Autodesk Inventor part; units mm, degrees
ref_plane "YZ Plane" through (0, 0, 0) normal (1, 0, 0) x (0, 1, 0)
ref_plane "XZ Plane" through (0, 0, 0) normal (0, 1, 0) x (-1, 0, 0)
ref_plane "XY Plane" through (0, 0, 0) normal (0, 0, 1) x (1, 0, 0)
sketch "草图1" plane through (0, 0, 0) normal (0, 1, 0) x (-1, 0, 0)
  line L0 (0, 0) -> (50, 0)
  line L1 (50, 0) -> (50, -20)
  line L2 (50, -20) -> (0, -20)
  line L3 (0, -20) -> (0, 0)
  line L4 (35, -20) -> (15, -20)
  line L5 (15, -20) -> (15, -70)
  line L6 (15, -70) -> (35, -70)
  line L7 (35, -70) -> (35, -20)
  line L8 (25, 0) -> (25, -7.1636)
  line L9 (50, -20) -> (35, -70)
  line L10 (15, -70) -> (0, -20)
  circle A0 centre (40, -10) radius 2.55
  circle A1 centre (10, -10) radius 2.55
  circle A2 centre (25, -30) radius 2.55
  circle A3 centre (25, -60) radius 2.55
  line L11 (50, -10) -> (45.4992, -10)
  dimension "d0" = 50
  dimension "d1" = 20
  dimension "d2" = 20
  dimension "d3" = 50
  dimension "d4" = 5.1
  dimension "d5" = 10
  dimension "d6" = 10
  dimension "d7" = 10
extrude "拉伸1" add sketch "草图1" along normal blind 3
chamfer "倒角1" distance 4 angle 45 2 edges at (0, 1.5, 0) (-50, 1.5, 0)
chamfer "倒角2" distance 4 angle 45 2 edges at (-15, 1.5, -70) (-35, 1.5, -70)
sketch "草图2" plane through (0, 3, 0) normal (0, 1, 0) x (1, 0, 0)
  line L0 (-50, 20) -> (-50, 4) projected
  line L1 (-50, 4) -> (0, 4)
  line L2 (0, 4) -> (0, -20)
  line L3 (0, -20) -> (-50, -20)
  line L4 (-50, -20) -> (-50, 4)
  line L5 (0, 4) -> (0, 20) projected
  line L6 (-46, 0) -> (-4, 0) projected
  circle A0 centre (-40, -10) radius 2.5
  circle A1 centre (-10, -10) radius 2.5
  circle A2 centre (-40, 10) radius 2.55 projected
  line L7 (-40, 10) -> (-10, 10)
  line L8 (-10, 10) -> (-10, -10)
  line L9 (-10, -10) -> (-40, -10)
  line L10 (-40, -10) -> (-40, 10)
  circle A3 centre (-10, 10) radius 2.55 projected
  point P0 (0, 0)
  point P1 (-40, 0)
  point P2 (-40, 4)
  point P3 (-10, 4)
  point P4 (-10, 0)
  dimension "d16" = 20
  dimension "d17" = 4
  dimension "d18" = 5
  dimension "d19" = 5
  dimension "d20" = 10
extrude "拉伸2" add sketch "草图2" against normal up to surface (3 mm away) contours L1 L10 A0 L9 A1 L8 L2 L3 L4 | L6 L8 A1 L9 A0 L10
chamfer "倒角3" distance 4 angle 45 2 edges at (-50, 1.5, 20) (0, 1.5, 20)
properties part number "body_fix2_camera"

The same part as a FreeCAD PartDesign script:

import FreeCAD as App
import Part
import Sketcher

V = App.Vector
Q = App.Units.Quantity


def edges_at(feature, points):
    """Names of the edges that pass closest to the given points."""
    edges = feature.Shape.Edges
    near = lambda p: min(range(len(edges)), key=lambda i: edges[i].distToShape(Part.Vertex(*p))[0])
    return sorted({f"Edge{near(p) + 1}" for p in points})

doc = App.newDocument("Part")
body = doc.addObject("PartDesign::Body", "Body")

# Sketch on XZ plane
sketch1 = body.newObject("Sketcher::SketchObject", "Sketch")
sketch1.AttachmentSupport = (doc.getObject("XZ_Plane"), [""])
sketch1.MapMode = "FlatFace"
sketch1.addGeometry([
    Part.LineSegment(V(0, 0, 0), V(0, -20, 0)),  # 0
    Part.LineSegment(V(0, -20, 0), V(-15, -70, 0)),  # 1
    Part.LineSegment(V(-15, -70, 0), V(-35, -70, 0)),  # 2
    Part.LineSegment(V(-35, -70, 0), V(-50, -20, 0)),  # 3
    Part.LineSegment(V(-50, -20, 0), V(-50, 0, 0)),  # 4
    Part.LineSegment(V(-50, 0, 0), V(0, 0, 0)),  # 5
    Part.Circle(V(-10, -10, 0), V(0, 0, 1), 2.55),  # 6
    Part.Circle(V(-40, -10, 0), V(0, 0, 1), 2.55),  # 7
    Part.Circle(V(-25, -30, 0), V(0, 0, 1), 2.55),  # 8
    Part.Circle(V(-25, -60, 0), V(0, 0, 1), 2.55),  # 9
], False)
sketch1.addConstraint([
    Sketcher.Constraint("Coincident", 0, 2, 1, 1),
    Sketcher.Constraint("Coincident", 1, 2, 2, 1),
    Sketcher.Constraint("Coincident", 2, 2, 3, 1),
    Sketcher.Constraint("Coincident", 3, 2, 4, 1),
    Sketcher.Constraint("Coincident", 4, 2, 5, 1),
    Sketcher.Constraint("Coincident", 5, 2, 0, 1),
    Sketcher.Constraint("Vertical", 0),
    Sketcher.Constraint("Horizontal", 2),
    Sketcher.Constraint("Vertical", 4),
    Sketcher.Constraint("Horizontal", 5),
    Sketcher.Constraint("Coincident", 5, 2, -1, 1),
    Sketcher.Constraint("Equal", 6, 7),
    Sketcher.Constraint("Equal", 7, 8),
    Sketcher.Constraint("Equal", 8, 9),
    Sketcher.Constraint("Horizontal", 6, 3, 7, 3),
    Sketcher.Constraint("Horizontal", 0, 2, 3, 2),
    Sketcher.Constraint("Vertical", 8, 3, 9, 3),
    Sketcher.Constraint("Equal", 2, 0),
    Sketcher.Constraint("Equal", 1, 3),
    Sketcher.Constraint("Diameter", 6, Q("5.1 mm")),
    Sketcher.Constraint("DistanceX", 2, 2, 2, 1, Q("20 mm")),
    Sketcher.Constraint("DistanceX", 5, 1, 5, 2, Q("50 mm")),
    Sketcher.Constraint("DistanceX", 6, 3, -1, 1, Q("10 mm")),
    Sketcher.Constraint("DistanceY", 6, 3, -1, 1, Q("10 mm")),
    Sketcher.Constraint("DistanceY", 8, 3, 6, 3, Q("20 mm")),
    Sketcher.Constraint("DistanceY", 9, 3, 6, 3, Q("50 mm")),
    Sketcher.Constraint("DistanceX", 9, 3, 1, 2, Q("10 mm")),
    Sketcher.Constraint("DistanceY", 1, 2, 9, 3, Q("10 mm")),
    Sketcher.Constraint("DistanceX", 3, 2, 7, 3, Q("10 mm")),
])
pad1 = body.newObject("PartDesign::Pad", "Pad")
pad1.Profile = sketch1
pad1.Length = 3
pad1.Reversed = True
doc.recompute()

chamfer = body.newObject("PartDesign::Chamfer", "Chamfer")
chamfer.Base = (pad1, edges_at(pad1, [(0, 1.5, 0), (-50, 1.5, 0)]))
chamfer.Size = 4
doc.recompute()

chamfer2 = body.newObject("PartDesign::Chamfer", "Chamfer001")
chamfer2.Base = (chamfer, edges_at(chamfer, [(-15, 1.5, -70), (-35, 1.5, -70)]))
chamfer2.Size = 4

# Sketch on XZ plane
sketch2 = body.newObject("Sketcher::SketchObject", "Sketch001")
sketch2.AttachmentSupport = (doc.getObject("XZ_Plane"), [""])
sketch2.MapMode = "FlatFace"
sketch2.AttachmentOffset = App.Placement(V(0, 0, -3), App.Rotation())
sketch2.addGeometry([
    Part.LineSegment(V(-40, -4, 0), V(-50, -4, 0)),  # 0
    Part.LineSegment(V(-50, -4, 0), V(-50, 20, 0)),  # 1
    Part.LineSegment(V(-50, 20, 0), V(0, 20, 0)),  # 2
    Part.LineSegment(V(0, 20, 0), V(0, -4, 0)),  # 3
    Part.LineSegment(V(0, -4, 0), V(-10, -4, 0)),  # 4
    Part.LineSegment(V(-10, -4, 0), V(-10, 0, 0)),  # 5
    Part.LineSegment(V(-10, 0, 0), V(-40, 0, 0)),  # 6
    Part.LineSegment(V(-40, 0, 0), V(-40, -4, 0)),  # 7
    Part.Circle(V(-40, 10, 0), V(0, 0, 1), 2.5),  # 8
    Part.Circle(V(-10, 10, 0), V(0, 0, 1), 2.5),  # 9
], False)
sketch2.addConstraint([
    Sketcher.Constraint("Coincident", 0, 2, 1, 1),
    Sketcher.Constraint("Coincident", 1, 2, 2, 1),
    Sketcher.Constraint("Coincident", 2, 2, 3, 1),
    Sketcher.Constraint("Coincident", 3, 2, 4, 1),
    Sketcher.Constraint("Coincident", 4, 2, 5, 1),
    Sketcher.Constraint("Coincident", 5, 2, 6, 1),
    Sketcher.Constraint("Coincident", 6, 2, 7, 1),
    Sketcher.Constraint("Coincident", 7, 2, 0, 1),
    Sketcher.Constraint("Horizontal", 0),
    Sketcher.Constraint("Vertical", 1),
    Sketcher.Constraint("Horizontal", 2),
    Sketcher.Constraint("Vertical", 3),
    Sketcher.Constraint("Horizontal", 4),
    Sketcher.Constraint("Vertical", 5),
    Sketcher.Constraint("Horizontal", 6),
    Sketcher.Constraint("Vertical", 7),
    Sketcher.Constraint("Equal", 8, 9),
    Sketcher.Constraint("PointOnObject", 2, 2, -2),
    Sketcher.Constraint("PointOnObject", 5, 2, -1),
    Sketcher.Constraint("Horizontal", 8, 3, 9, 3),
    Sketcher.Constraint("Horizontal", 0, 2, 3, 2),
    Sketcher.Constraint("Vertical", 9, 3, 4, 2),
    Sketcher.Constraint("Vertical", 8, 3, 6, 2),
    Sketcher.Constraint("Equal", 0, 4),
    Sketcher.Constraint("Diameter", 8, Q("5 mm")),
    Sketcher.Constraint("DistanceX", 0, 2, 0, 1, Q("10 mm")),
    Sketcher.Constraint("DistanceY", 5, 1, 5, 2, Q("4 mm")),
    Sketcher.Constraint("DistanceY", -1, 1, 8, 3, Q("10 mm")),
    Sketcher.Constraint("DistanceY", -1, 1, 1, 2, Q("20 mm")),
    Sketcher.Constraint("DistanceX", 2, 1, 2, 2, Q("50 mm")),
])
pad2 = body.newObject("PartDesign::Pad", "Pad001")
pad2.Profile = sketch2
pad2.Length = 3
doc.recompute()

chamfer3 = body.newObject("PartDesign::Chamfer", "Chamfer002")
chamfer3.Base = (pad2, edges_at(pad2, [(-50, 1.5, 20), (0, 1.5, 20)]))
chamfer3.Size = 4

doc.recompute()
